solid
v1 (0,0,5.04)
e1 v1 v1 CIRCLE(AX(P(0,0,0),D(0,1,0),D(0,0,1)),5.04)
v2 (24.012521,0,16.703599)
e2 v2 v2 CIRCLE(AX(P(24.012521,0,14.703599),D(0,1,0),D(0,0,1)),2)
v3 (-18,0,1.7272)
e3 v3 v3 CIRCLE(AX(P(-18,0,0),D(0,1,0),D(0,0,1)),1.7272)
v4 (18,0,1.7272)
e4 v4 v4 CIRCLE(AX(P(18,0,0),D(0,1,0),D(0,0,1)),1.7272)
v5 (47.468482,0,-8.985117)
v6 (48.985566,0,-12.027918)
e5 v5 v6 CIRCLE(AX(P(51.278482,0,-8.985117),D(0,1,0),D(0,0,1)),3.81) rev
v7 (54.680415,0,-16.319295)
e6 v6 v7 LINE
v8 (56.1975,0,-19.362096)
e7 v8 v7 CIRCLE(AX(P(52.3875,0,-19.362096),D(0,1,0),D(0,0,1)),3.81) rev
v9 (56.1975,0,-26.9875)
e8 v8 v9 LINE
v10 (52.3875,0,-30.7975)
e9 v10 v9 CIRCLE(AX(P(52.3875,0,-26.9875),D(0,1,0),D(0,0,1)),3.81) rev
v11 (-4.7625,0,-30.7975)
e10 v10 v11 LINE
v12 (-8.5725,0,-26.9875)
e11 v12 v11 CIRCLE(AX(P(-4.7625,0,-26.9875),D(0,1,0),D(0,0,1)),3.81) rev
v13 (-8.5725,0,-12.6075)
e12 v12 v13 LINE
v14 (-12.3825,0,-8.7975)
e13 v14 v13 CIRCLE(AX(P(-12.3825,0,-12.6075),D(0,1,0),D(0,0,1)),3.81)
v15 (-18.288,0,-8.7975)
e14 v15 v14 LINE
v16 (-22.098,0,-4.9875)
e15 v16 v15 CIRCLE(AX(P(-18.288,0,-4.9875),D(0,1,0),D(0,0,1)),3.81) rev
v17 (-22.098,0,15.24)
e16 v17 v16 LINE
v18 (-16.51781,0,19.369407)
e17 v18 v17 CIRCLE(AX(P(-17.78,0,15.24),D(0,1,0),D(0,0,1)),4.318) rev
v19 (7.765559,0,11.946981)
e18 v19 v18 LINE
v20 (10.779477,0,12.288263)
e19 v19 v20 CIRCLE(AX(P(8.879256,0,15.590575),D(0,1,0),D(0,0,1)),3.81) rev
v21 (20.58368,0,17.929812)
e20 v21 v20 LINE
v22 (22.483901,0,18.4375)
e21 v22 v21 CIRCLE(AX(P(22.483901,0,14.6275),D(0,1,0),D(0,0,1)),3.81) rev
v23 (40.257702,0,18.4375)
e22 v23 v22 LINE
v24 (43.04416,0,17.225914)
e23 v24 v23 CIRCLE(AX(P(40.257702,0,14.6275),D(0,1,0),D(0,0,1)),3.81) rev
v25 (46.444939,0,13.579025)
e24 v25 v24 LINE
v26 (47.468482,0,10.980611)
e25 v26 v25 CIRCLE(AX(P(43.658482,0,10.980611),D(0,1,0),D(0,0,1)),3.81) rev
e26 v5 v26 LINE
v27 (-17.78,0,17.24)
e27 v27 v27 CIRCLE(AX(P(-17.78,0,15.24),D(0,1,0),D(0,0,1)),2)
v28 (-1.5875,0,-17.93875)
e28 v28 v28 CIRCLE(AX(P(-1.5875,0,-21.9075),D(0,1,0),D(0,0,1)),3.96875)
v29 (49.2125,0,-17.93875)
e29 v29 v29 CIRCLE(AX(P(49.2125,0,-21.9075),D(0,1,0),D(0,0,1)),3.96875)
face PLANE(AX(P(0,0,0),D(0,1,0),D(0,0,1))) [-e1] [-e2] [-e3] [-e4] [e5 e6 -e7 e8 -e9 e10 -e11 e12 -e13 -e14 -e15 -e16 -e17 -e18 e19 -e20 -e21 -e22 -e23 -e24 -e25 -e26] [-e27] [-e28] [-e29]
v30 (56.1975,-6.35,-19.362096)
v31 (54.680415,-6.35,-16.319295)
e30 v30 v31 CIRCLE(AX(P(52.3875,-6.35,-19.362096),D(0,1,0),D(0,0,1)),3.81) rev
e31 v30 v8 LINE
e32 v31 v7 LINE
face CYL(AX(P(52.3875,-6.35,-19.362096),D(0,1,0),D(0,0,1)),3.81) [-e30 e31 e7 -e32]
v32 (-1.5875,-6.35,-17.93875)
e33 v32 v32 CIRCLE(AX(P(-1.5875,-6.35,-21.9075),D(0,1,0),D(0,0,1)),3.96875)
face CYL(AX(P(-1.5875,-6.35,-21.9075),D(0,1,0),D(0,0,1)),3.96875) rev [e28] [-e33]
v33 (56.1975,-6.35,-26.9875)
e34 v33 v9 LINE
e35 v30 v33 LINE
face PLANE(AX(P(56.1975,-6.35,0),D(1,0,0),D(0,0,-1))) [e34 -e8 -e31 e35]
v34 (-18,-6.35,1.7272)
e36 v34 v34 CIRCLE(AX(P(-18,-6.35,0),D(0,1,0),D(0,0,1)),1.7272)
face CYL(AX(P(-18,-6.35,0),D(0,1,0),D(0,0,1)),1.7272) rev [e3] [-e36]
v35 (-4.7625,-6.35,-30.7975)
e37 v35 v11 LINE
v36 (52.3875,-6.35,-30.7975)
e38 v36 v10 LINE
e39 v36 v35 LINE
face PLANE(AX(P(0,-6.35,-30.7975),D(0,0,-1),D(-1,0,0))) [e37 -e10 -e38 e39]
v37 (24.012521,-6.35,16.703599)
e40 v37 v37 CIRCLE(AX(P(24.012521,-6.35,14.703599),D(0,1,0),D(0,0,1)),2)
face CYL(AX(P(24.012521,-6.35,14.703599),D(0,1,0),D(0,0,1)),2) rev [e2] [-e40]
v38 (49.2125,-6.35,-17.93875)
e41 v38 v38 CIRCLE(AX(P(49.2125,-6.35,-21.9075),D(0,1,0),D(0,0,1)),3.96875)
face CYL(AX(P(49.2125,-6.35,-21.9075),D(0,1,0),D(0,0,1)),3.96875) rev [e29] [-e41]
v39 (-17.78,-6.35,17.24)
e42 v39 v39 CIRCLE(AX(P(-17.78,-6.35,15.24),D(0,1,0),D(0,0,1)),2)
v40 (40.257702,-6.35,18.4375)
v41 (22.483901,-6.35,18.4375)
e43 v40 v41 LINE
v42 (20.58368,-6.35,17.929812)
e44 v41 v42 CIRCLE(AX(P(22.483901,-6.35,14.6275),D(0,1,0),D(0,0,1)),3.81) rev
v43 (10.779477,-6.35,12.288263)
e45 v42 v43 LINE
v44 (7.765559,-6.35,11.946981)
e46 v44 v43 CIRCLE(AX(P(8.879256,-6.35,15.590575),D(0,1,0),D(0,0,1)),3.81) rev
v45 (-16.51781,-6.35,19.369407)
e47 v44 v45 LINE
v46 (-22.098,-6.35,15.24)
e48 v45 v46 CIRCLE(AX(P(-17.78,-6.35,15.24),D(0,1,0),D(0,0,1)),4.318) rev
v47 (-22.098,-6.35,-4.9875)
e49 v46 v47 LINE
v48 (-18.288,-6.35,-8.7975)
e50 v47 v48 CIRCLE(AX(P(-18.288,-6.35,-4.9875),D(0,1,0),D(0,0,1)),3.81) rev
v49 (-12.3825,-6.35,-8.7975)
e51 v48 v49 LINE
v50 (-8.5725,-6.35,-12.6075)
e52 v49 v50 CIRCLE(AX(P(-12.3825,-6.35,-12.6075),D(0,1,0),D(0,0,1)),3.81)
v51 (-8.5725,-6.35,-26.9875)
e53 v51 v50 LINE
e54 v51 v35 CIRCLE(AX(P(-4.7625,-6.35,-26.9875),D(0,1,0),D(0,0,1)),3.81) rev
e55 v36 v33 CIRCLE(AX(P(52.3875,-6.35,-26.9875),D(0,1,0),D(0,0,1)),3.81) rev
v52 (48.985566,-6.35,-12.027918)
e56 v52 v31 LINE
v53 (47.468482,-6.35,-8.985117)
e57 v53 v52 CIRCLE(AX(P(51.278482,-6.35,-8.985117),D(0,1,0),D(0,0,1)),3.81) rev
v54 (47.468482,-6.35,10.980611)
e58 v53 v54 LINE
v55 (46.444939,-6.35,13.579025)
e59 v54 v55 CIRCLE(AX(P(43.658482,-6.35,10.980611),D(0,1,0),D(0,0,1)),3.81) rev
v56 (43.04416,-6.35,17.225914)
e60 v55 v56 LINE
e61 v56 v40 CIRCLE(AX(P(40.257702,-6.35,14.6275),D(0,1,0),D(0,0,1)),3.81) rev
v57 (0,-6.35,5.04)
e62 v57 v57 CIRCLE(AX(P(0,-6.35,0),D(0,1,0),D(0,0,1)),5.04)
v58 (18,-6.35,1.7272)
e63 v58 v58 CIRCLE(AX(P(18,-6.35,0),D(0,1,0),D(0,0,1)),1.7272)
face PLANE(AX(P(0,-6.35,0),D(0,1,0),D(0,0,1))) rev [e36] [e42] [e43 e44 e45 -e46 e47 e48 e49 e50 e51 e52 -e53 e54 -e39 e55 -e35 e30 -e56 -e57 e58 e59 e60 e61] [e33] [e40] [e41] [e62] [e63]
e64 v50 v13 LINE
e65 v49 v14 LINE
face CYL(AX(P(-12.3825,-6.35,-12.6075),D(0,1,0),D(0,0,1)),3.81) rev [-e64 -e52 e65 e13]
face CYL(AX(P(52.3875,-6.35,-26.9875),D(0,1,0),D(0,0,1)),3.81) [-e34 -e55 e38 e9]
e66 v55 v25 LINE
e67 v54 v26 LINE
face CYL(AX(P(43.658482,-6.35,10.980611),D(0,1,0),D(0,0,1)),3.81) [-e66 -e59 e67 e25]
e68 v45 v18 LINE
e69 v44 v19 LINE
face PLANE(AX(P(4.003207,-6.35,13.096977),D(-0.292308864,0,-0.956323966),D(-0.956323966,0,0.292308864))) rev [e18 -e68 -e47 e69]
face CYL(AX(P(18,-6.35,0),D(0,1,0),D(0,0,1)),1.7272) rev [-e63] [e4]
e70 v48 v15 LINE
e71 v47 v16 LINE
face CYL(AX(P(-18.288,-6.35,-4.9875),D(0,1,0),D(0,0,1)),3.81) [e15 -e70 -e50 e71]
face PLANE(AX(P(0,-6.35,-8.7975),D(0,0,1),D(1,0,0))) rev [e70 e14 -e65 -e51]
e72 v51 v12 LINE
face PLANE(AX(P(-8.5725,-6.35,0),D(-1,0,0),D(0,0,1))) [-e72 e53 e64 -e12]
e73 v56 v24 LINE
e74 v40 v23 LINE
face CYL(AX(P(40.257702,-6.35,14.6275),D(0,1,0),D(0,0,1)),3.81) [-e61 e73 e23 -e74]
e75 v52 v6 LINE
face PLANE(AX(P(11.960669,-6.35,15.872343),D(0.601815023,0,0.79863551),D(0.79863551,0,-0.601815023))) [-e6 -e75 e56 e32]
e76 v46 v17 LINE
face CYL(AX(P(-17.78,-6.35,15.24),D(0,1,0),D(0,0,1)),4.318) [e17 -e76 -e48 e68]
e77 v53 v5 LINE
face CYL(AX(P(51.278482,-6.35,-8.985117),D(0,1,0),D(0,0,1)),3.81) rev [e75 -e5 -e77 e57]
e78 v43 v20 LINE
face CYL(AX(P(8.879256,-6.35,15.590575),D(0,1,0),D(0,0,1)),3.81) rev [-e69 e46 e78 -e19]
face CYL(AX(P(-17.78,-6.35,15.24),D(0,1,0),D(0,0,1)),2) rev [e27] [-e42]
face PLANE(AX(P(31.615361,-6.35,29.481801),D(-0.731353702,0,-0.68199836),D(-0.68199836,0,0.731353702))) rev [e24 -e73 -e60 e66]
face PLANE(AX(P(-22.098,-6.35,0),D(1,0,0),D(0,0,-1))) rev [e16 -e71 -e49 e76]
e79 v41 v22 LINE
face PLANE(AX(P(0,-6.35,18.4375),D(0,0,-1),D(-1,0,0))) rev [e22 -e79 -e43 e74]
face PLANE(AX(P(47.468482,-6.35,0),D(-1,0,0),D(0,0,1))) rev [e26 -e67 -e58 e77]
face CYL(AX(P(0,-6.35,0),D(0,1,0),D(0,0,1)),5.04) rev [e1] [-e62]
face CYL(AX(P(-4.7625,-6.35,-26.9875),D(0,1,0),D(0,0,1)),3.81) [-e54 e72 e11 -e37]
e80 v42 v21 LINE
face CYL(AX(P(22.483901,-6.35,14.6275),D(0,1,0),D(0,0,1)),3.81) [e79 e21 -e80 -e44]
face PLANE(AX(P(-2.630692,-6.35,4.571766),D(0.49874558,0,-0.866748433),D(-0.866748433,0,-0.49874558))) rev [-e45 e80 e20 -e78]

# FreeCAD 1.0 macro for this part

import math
import FreeCAD as App
import Part
import Sketcher
Q = App.Units.Quantity

doc = App.newDocument("Part")
body = doc.addObject("PartDesign::Body", "Body")

sketch1 = body.newObject("Sketcher::SketchObject", "Sketch")
sketch1.AttachmentSupport = (doc.getObject("XZ_Plane"), [""])
sketch1.MapMode = "FlatFace"
sketch1.addGeometry([
    Part.LineSegment(App.Vector(22.5, 18.4, 0), App.Vector(40.3, 18.4, 0)),
    Part.ArcOfCircle(Part.Circle(App.Vector(40.3, 14.6, 0), App.Vector(0, 0, 1), 3.8), math.radians(43), math.radians(90)),
    Part.LineSegment(App.Vector(43, 17.2, 0), App.Vector(46.4, 13.6, 0)),
    Part.ArcOfCircle(Part.Circle(App.Vector(43.7, 11, 0), App.Vector(0, 0, 1), 3.8), math.radians(0), math.radians(43)),
    Part.LineSegment(App.Vector(47.5, 11, 0), App.Vector(47.5, -9, 0)),
    Part.ArcOfCircle(Part.Circle(App.Vector(51.3, -9, 0), App.Vector(0, 0, 1), 3.8), math.radians(-180), math.radians(-127)),
    Part.LineSegment(App.Vector(49, -12, 0), App.Vector(54.7, -16.3, 0)),
    Part.ArcOfCircle(Part.Circle(App.Vector(52.4, -19.4, 0), App.Vector(0, 0, 1), 3.8), math.radians(0), math.radians(53)),
    Part.LineSegment(App.Vector(56.2, -19.4, 0), App.Vector(56.2, -27, 0)),
    Part.ArcOfCircle(Part.Circle(App.Vector(52.4, -27, 0), App.Vector(0, 0, 1), 3.8), math.radians(-90), math.radians(0)),
    Part.LineSegment(App.Vector(52.4, -30.8, 0), App.Vector(-4.8, -30.8, 0)),
    Part.ArcOfCircle(Part.Circle(App.Vector(-4.8, -27, 0), App.Vector(0, 0, 1), 3.8), math.radians(-180), math.radians(-90)),
    Part.LineSegment(App.Vector(-8.6, -27, 0), App.Vector(-8.6, -12.6, 0)),
    Part.ArcOfCircle(Part.Circle(App.Vector(-12.4, -12.6, 0), App.Vector(0, 0, 1), 3.8), math.radians(0), math.radians(90)),
    Part.LineSegment(App.Vector(-12.4, -8.8, 0), App.Vector(-18.3, -8.8, 0)),
    Part.ArcOfCircle(Part.Circle(App.Vector(-18.3, -5, 0), App.Vector(0, 0, 1), 3.8), math.radians(-180), math.radians(-90)),
    Part.LineSegment(App.Vector(-22.1, -5, 0), App.Vector(-22.1, 15.2, 0)),
    Part.ArcOfCircle(Part.Circle(App.Vector(-17.8, 15.2, 0), App.Vector(0, 0, 1), 4.3), math.radians(73), math.radians(180)),
    Part.LineSegment(App.Vector(-16.5, 19.4, 0), App.Vector(7.8, 11.9, 0)),
    Part.ArcOfCircle(Part.Circle(App.Vector(8.9, 15.6, 0), App.Vector(0, 0, 1), 3.8), math.radians(-107), math.radians(-60)),
    Part.LineSegment(App.Vector(10.8, 12.3, 0), App.Vector(20.6, 17.9, 0)),
    Part.ArcOfCircle(Part.Circle(App.Vector(22.5, 14.6, 0), App.Vector(0, 0, 1), 3.8), math.radians(90), math.radians(120)),
    Part.Circle(App.Vector(24, 14.7, 0), App.Vector(0, 0, 1), 2),
    Part.Circle(App.Vector(18, 0, 0), App.Vector(0, 0, 1), 1.7),
    Part.Circle(App.Vector(-17.8, 15.2, 0), App.Vector(0, 0, 1), 2),
    Part.Circle(App.Vector(0, 0, 0), App.Vector(0, 0, 1), 5),
    Part.Circle(App.Vector(-18, 0, 0), App.Vector(0, 0, 1), 1.7),
    Part.Circle(App.Vector(49.2, -21.9, 0), App.Vector(0, 0, 1), 4),
    Part.Circle(App.Vector(-1.6, -21.9, 0), App.Vector(0, 0, 1), 4),
], False)
sketch1.addConstraint([
    Sketcher.Constraint("Tangent", 0, 2, 1, 2),
    Sketcher.Constraint("Tangent", 1, 1, 2, 1),
    Sketcher.Constraint("Tangent", 2, 2, 3, 2),
    Sketcher.Constraint("Tangent", 3, 1, 4, 1),
    Sketcher.Constraint("Tangent", 4, 2, 5, 1),
    Sketcher.Constraint("Tangent", 5, 2, 6, 1),
    Sketcher.Constraint("Tangent", 6, 2, 7, 2),
    Sketcher.Constraint("Tangent", 7, 1, 8, 1),
    Sketcher.Constraint("Tangent", 8, 2, 9, 2),
    Sketcher.Constraint("Tangent", 9, 1, 10, 1),
    Sketcher.Constraint("Tangent", 10, 2, 11, 2),
    Sketcher.Constraint("Tangent", 11, 1, 12, 1),
    Sketcher.Constraint("Tangent", 12, 2, 13, 1),
    Sketcher.Constraint("Tangent", 13, 2, 14, 1),
    Sketcher.Constraint("Tangent", 14, 2, 15, 2),
    Sketcher.Constraint("Tangent", 15, 1, 16, 1),
    Sketcher.Constraint("Tangent", 16, 2, 17, 2),
    Sketcher.Constraint("Tangent", 17, 1, 18, 1),
    Sketcher.Constraint("Tangent", 18, 2, 19, 1),
    Sketcher.Constraint("Tangent", 19, 2, 20, 1),
    Sketcher.Constraint("Tangent", 20, 2, 21, 2),
    Sketcher.Constraint("Tangent", 21, 1, 0, 1),
    Sketcher.Constraint("Horizontal", 0),
    Sketcher.Constraint("Vertical", 4),
    Sketcher.Constraint("Vertical", 8),
    Sketcher.Constraint("Horizontal", 10),
    Sketcher.Constraint("Vertical", 12),
    Sketcher.Constraint("Horizontal", 14),
    Sketcher.Constraint("Vertical", 16),
    Sketcher.Constraint("Coincident", 25, 3, -1, 1),
    Sketcher.Constraint("Coincident", 24, 3, 17, 3),
    Sketcher.Constraint("Equal", 1, 3),
    Sketcher.Constraint("Equal", 3, 5),
    Sketcher.Constraint("Equal", 5, 7),
    Sketcher.Constraint("Equal", 7, 9),
    Sketcher.Constraint("Equal", 9, 11),
    Sketcher.Constraint("Equal", 11, 13),
    Sketcher.Constraint("Equal", 13, 15),
    Sketcher.Constraint("Equal", 15, 19),
    Sketcher.Constraint("Equal", 19, 21),
    Sketcher.Constraint("Equal", 22, 24),
    Sketcher.Constraint("Equal", 23, 26),
    Sketcher.Constraint("Equal", 27, 28),
    Sketcher.Constraint("Symmetric", 23, 3, 26, 3, -1, 1),
    Sketcher.Constraint("PointOnObject", 23, 3, -1),
    Sketcher.Constraint("Horizontal", 27, 3, 28, 3),
    Sketcher.Constraint("Radius", 1, Q("0.15 in")),
    Sketcher.Constraint("Radius", 17, Q("0.17 in")),
    Sketcher.Constraint("Diameter", 23, Q("0.136 in")),
    Sketcher.Constraint("Diameter", 27, Q("0.3125 in")),
    Sketcher.Constraint("Angle", 2, Q("-47 deg")),
    Sketcher.Constraint("Angle", 6, Q("-37 deg")),
    Sketcher.Constraint("DistanceX", 10, 2, 10, 1, Q("2.25 in")),
    Sketcher.Constraint("DistanceX", 17, 3, -1, 1, Q("0.7 in")),
    Sketcher.Constraint("DistanceY", -1, 1, 17, 3, Q("0.6 in")),
    Sketcher.Constraint("DistanceY", 9, 3, 27, 3, Q("0.2 in")),
    Sketcher.Constraint("Diameter", 22, 4.0),
    Sketcher.Constraint("Diameter", 25, 10.08),
    Sketcher.Constraint("DistanceX", 14, 2, 14, 1, Q("0.2325 in")),
    Sketcher.Constraint("DistanceY", 9, 3, -1, 1, Q("1.0625 in")),
    Sketcher.Constraint("DistanceX", -1, 1, 27, 3, Q("1.9375 in")),
    Sketcher.Constraint("DistanceX", 28, 3, -1, 1, Q("0.0625 in")),
    Sketcher.Constraint("DistanceX", 0, 1, 0, 2, 17.773802),
    Sketcher.Constraint("DistanceY", 12, 1, 12, 2, 14.38),
    Sketcher.Constraint("DistanceY", -1, 1, 1, 3, 14.6275),
    Sketcher.Constraint("DistanceX", -1, 1, 21, 3, 22.483901),
    Sketcher.Constraint("DistanceY", -1, 1, 22, 3, 14.703599),
    Sketcher.Constraint("DistanceX", -1, 1, 23, 3, 18.0),
    Sketcher.Constraint("Distance", 2, 4.986492),
    Sketcher.Constraint("Distance", 18, 25.392409),
    Sketcher.Constraint("DistanceY", 4, 2, 4, 1, 19.965728),
    Sketcher.Constraint("DistanceX", -1, 1, 22, 3, 24.012521),
    Sketcher.Constraint("DistanceX", 17, 1, -1, 1, 16.51781),
])
pad1 = body.newObject("PartDesign::Pad", "Pad")
pad1.Profile = sketch1
pad1.Length = Q("0.25 in")

doc.recompute()
